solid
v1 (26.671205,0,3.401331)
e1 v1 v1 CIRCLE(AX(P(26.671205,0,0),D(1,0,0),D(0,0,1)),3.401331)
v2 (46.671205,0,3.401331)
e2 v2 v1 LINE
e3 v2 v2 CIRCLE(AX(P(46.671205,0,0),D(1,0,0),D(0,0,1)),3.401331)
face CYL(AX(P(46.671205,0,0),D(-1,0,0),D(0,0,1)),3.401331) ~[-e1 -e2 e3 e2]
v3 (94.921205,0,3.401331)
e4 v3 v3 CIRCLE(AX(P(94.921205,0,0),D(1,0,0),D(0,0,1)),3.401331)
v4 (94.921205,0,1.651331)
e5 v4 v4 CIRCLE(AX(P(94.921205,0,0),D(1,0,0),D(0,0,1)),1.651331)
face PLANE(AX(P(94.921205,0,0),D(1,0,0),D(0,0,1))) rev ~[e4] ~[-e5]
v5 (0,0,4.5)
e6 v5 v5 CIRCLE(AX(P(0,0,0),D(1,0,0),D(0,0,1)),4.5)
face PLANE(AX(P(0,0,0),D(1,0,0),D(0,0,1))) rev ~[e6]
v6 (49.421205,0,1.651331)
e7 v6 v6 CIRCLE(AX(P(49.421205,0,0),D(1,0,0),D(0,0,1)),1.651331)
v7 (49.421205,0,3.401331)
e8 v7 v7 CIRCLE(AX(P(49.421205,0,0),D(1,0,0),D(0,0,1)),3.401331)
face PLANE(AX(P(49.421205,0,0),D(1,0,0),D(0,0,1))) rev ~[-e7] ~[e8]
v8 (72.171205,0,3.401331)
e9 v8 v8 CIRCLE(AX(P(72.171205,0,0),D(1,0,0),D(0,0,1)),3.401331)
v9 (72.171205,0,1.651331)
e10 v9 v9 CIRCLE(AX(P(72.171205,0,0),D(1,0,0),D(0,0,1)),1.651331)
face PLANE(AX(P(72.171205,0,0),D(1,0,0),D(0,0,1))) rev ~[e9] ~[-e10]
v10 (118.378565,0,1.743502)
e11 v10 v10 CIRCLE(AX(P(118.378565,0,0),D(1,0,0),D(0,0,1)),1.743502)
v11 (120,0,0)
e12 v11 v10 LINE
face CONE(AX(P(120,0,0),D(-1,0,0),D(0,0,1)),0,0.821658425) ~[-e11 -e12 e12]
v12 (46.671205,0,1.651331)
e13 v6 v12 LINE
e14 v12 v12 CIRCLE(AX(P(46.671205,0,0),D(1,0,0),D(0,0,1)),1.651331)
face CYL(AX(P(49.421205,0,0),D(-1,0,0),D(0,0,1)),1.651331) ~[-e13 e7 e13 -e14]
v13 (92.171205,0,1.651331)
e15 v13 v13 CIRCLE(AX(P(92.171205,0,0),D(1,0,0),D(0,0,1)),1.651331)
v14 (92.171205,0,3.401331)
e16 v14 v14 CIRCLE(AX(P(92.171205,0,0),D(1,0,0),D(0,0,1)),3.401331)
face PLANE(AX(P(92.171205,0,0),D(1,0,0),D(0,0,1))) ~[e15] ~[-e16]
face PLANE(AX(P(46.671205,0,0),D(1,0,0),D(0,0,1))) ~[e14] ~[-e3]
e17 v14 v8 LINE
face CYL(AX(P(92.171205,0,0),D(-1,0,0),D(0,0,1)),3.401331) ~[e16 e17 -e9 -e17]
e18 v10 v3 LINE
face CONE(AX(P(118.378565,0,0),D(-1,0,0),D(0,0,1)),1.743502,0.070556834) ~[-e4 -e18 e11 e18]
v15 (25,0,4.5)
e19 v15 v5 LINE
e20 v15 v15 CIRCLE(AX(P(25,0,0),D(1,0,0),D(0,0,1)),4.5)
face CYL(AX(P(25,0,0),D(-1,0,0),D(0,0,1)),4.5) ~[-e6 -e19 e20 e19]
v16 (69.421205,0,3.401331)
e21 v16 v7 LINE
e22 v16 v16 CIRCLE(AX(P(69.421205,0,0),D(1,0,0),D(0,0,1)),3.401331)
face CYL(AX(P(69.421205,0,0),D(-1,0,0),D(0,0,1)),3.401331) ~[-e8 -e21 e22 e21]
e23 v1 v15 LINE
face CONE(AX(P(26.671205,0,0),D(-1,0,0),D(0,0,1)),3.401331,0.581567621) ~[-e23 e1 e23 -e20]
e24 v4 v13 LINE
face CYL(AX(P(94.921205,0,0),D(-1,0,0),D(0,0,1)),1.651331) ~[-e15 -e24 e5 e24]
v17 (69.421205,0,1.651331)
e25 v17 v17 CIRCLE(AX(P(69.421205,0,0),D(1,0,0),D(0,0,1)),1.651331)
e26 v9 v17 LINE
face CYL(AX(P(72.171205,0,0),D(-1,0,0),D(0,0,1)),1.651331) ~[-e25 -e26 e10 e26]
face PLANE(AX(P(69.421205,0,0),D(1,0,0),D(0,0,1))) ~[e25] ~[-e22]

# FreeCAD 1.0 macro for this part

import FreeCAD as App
import Part
import Sketcher

V = App.Vector


def add_polygon(sketch, points):
    """Adds a closed chain of lines whose ends are joined by coincident constraints."""
    first, n = sketch.GeometryCount, len(points)
    for a, b in zip(points, points[1:] + points[:1]):
        sketch.addGeometry(Part.LineSegment(App.Vector(*a, 0), App.Vector(*b, 0)), False)
    for i in range(n):
        sketch.addConstraint(Sketcher.Constraint("Coincident", first + i, 2, first + (i + 1) % n, 1))

doc = App.newDocument("Part")
params = doc.addObject("Spreadsheet::Sheet", "Params")
for row, (alias, value) in enumerate([
    ("sketch1_width", "20 mm"),
    ("sketch1_width2", "25 mm"),
    ("sketch1_width3", "120 mm"),
    ("sketch1_length", "2 mm"),
    ("sketch1_height", "4.5 mm"),
    ("revolution_angle", "360 deg"),
], start=1):
    params.set(f"A{row}", alias)
    params.set(f"B{row}", "=" + value)
    params.setAlias(f"B{row}", alias)

body = doc.addObject("PartDesign::Body", "Body")

# Sketch on XZ plane
sketch1 = doc.addObject("Sketcher::SketchObject", "Sketch")
body.addObject(sketch1)
sketch1.AttachmentSupport = (doc.XZ_Plane, [""])
sketch1.MapMode = "FlatFace"
add_polygon(sketch1, [(120, 0), (118.4, 1.7), (94.9, 3.4), (94.9, 1.7), (92.2, 1.7), (92.2, 3.4), (72.2, 3.4), (72.2, 1.7), (69.4, 1.7), (69.4, 3.4), (49.4, 3.4), (49.4, 1.7), (46.7, 1.7), (46.7, 3.4), (26.7, 3.4), (25, 4.5), (0, 4.5), (0, 0)])  # lines 0-17
sketch1.addConstraint([
    Sketcher.Constraint("Vertical", 2),
    Sketcher.Constraint("Horizontal", 3),
    Sketcher.Constraint("Vertical", 4),
    Sketcher.Constraint("Horizontal", 5),
    Sketcher.Constraint("Vertical", 6),
    Sketcher.Constraint("Horizontal", 7),
    Sketcher.Constraint("Vertical", 8),
    Sketcher.Constraint("Horizontal", 9),
    Sketcher.Constraint("Vertical", 10),
    Sketcher.Constraint("Horizontal", 11),
    Sketcher.Constraint("Vertical", 12),
    Sketcher.Constraint("Horizontal", 13),
    Sketcher.Constraint("Horizontal", 15),
    Sketcher.Constraint("Vertical", 16),
    Sketcher.Constraint("Horizontal", 17),
    Sketcher.Constraint("Coincident", 16, 2, -1, 1),
    Sketcher.Constraint("Horizontal", 1, 2, 4, 2),
    Sketcher.Constraint("Horizontal", 3, 2, 6, 2),
    Sketcher.Constraint("Horizontal", 5, 2, 8, 2),
    Sketcher.Constraint("Horizontal", 7, 2, 10, 2),
    Sketcher.Constraint("Horizontal", 9, 2, 12, 2),
    Sketcher.Constraint("Equal", 3, 7),
    Sketcher.Constraint("Equal", 5, 9),
    Sketcher.Constraint("Equal", 7, 11),
    Sketcher.Constraint("Equal", 9, 13),
    Sketcher.Constraint("DistanceX", 5, 2, 5, 1, 20.0),
    Sketcher.Constraint("DistanceX", 15, 2, 15, 1, 25.0),
    Sketcher.Constraint("DistanceX", 17, 1, 17, 2, 120.0),
    Sketcher.Constraint("Distance", 14, 2.0),
    Sketcher.Constraint("DistanceY", 16, 2, 16, 1, 4.5),
    Sketcher.Constraint("DistanceX", 3, 2, 3, 1, 2.75),
    Sketcher.Constraint("DistanceY", 2, 2, 2, 1, 1.75),
    Sketcher.Constraint("Distance", 1, 23.51587),
    Sketcher.Constraint("DistanceY", -1, 1, 1, 2, 3.401331),
    Sketcher.Constraint("DistanceX", 1, 2, 0, 2, 23.45736),
])
sketch1.setExpression("Constraints[43]", "Params.sketch1_width")
sketch1.setExpression("Constraints[44]", "Params.sketch1_width2")
sketch1.setExpression("Constraints[45]", "Params.sketch1_width3")
sketch1.setExpression("Constraints[46]", "Params.sketch1_length")
sketch1.setExpression("Constraints[47]", "Params.sketch1_height")
revolution = doc.addObject("PartDesign::Revolution", "Revolution")
body.addObject(revolution)
revolution.Profile = sketch1
revolution.ReferenceAxis = (sketch1, ["H_Axis"])
revolution.setExpression("Angle", "Params.revolution_angle")

doc.recompute()
